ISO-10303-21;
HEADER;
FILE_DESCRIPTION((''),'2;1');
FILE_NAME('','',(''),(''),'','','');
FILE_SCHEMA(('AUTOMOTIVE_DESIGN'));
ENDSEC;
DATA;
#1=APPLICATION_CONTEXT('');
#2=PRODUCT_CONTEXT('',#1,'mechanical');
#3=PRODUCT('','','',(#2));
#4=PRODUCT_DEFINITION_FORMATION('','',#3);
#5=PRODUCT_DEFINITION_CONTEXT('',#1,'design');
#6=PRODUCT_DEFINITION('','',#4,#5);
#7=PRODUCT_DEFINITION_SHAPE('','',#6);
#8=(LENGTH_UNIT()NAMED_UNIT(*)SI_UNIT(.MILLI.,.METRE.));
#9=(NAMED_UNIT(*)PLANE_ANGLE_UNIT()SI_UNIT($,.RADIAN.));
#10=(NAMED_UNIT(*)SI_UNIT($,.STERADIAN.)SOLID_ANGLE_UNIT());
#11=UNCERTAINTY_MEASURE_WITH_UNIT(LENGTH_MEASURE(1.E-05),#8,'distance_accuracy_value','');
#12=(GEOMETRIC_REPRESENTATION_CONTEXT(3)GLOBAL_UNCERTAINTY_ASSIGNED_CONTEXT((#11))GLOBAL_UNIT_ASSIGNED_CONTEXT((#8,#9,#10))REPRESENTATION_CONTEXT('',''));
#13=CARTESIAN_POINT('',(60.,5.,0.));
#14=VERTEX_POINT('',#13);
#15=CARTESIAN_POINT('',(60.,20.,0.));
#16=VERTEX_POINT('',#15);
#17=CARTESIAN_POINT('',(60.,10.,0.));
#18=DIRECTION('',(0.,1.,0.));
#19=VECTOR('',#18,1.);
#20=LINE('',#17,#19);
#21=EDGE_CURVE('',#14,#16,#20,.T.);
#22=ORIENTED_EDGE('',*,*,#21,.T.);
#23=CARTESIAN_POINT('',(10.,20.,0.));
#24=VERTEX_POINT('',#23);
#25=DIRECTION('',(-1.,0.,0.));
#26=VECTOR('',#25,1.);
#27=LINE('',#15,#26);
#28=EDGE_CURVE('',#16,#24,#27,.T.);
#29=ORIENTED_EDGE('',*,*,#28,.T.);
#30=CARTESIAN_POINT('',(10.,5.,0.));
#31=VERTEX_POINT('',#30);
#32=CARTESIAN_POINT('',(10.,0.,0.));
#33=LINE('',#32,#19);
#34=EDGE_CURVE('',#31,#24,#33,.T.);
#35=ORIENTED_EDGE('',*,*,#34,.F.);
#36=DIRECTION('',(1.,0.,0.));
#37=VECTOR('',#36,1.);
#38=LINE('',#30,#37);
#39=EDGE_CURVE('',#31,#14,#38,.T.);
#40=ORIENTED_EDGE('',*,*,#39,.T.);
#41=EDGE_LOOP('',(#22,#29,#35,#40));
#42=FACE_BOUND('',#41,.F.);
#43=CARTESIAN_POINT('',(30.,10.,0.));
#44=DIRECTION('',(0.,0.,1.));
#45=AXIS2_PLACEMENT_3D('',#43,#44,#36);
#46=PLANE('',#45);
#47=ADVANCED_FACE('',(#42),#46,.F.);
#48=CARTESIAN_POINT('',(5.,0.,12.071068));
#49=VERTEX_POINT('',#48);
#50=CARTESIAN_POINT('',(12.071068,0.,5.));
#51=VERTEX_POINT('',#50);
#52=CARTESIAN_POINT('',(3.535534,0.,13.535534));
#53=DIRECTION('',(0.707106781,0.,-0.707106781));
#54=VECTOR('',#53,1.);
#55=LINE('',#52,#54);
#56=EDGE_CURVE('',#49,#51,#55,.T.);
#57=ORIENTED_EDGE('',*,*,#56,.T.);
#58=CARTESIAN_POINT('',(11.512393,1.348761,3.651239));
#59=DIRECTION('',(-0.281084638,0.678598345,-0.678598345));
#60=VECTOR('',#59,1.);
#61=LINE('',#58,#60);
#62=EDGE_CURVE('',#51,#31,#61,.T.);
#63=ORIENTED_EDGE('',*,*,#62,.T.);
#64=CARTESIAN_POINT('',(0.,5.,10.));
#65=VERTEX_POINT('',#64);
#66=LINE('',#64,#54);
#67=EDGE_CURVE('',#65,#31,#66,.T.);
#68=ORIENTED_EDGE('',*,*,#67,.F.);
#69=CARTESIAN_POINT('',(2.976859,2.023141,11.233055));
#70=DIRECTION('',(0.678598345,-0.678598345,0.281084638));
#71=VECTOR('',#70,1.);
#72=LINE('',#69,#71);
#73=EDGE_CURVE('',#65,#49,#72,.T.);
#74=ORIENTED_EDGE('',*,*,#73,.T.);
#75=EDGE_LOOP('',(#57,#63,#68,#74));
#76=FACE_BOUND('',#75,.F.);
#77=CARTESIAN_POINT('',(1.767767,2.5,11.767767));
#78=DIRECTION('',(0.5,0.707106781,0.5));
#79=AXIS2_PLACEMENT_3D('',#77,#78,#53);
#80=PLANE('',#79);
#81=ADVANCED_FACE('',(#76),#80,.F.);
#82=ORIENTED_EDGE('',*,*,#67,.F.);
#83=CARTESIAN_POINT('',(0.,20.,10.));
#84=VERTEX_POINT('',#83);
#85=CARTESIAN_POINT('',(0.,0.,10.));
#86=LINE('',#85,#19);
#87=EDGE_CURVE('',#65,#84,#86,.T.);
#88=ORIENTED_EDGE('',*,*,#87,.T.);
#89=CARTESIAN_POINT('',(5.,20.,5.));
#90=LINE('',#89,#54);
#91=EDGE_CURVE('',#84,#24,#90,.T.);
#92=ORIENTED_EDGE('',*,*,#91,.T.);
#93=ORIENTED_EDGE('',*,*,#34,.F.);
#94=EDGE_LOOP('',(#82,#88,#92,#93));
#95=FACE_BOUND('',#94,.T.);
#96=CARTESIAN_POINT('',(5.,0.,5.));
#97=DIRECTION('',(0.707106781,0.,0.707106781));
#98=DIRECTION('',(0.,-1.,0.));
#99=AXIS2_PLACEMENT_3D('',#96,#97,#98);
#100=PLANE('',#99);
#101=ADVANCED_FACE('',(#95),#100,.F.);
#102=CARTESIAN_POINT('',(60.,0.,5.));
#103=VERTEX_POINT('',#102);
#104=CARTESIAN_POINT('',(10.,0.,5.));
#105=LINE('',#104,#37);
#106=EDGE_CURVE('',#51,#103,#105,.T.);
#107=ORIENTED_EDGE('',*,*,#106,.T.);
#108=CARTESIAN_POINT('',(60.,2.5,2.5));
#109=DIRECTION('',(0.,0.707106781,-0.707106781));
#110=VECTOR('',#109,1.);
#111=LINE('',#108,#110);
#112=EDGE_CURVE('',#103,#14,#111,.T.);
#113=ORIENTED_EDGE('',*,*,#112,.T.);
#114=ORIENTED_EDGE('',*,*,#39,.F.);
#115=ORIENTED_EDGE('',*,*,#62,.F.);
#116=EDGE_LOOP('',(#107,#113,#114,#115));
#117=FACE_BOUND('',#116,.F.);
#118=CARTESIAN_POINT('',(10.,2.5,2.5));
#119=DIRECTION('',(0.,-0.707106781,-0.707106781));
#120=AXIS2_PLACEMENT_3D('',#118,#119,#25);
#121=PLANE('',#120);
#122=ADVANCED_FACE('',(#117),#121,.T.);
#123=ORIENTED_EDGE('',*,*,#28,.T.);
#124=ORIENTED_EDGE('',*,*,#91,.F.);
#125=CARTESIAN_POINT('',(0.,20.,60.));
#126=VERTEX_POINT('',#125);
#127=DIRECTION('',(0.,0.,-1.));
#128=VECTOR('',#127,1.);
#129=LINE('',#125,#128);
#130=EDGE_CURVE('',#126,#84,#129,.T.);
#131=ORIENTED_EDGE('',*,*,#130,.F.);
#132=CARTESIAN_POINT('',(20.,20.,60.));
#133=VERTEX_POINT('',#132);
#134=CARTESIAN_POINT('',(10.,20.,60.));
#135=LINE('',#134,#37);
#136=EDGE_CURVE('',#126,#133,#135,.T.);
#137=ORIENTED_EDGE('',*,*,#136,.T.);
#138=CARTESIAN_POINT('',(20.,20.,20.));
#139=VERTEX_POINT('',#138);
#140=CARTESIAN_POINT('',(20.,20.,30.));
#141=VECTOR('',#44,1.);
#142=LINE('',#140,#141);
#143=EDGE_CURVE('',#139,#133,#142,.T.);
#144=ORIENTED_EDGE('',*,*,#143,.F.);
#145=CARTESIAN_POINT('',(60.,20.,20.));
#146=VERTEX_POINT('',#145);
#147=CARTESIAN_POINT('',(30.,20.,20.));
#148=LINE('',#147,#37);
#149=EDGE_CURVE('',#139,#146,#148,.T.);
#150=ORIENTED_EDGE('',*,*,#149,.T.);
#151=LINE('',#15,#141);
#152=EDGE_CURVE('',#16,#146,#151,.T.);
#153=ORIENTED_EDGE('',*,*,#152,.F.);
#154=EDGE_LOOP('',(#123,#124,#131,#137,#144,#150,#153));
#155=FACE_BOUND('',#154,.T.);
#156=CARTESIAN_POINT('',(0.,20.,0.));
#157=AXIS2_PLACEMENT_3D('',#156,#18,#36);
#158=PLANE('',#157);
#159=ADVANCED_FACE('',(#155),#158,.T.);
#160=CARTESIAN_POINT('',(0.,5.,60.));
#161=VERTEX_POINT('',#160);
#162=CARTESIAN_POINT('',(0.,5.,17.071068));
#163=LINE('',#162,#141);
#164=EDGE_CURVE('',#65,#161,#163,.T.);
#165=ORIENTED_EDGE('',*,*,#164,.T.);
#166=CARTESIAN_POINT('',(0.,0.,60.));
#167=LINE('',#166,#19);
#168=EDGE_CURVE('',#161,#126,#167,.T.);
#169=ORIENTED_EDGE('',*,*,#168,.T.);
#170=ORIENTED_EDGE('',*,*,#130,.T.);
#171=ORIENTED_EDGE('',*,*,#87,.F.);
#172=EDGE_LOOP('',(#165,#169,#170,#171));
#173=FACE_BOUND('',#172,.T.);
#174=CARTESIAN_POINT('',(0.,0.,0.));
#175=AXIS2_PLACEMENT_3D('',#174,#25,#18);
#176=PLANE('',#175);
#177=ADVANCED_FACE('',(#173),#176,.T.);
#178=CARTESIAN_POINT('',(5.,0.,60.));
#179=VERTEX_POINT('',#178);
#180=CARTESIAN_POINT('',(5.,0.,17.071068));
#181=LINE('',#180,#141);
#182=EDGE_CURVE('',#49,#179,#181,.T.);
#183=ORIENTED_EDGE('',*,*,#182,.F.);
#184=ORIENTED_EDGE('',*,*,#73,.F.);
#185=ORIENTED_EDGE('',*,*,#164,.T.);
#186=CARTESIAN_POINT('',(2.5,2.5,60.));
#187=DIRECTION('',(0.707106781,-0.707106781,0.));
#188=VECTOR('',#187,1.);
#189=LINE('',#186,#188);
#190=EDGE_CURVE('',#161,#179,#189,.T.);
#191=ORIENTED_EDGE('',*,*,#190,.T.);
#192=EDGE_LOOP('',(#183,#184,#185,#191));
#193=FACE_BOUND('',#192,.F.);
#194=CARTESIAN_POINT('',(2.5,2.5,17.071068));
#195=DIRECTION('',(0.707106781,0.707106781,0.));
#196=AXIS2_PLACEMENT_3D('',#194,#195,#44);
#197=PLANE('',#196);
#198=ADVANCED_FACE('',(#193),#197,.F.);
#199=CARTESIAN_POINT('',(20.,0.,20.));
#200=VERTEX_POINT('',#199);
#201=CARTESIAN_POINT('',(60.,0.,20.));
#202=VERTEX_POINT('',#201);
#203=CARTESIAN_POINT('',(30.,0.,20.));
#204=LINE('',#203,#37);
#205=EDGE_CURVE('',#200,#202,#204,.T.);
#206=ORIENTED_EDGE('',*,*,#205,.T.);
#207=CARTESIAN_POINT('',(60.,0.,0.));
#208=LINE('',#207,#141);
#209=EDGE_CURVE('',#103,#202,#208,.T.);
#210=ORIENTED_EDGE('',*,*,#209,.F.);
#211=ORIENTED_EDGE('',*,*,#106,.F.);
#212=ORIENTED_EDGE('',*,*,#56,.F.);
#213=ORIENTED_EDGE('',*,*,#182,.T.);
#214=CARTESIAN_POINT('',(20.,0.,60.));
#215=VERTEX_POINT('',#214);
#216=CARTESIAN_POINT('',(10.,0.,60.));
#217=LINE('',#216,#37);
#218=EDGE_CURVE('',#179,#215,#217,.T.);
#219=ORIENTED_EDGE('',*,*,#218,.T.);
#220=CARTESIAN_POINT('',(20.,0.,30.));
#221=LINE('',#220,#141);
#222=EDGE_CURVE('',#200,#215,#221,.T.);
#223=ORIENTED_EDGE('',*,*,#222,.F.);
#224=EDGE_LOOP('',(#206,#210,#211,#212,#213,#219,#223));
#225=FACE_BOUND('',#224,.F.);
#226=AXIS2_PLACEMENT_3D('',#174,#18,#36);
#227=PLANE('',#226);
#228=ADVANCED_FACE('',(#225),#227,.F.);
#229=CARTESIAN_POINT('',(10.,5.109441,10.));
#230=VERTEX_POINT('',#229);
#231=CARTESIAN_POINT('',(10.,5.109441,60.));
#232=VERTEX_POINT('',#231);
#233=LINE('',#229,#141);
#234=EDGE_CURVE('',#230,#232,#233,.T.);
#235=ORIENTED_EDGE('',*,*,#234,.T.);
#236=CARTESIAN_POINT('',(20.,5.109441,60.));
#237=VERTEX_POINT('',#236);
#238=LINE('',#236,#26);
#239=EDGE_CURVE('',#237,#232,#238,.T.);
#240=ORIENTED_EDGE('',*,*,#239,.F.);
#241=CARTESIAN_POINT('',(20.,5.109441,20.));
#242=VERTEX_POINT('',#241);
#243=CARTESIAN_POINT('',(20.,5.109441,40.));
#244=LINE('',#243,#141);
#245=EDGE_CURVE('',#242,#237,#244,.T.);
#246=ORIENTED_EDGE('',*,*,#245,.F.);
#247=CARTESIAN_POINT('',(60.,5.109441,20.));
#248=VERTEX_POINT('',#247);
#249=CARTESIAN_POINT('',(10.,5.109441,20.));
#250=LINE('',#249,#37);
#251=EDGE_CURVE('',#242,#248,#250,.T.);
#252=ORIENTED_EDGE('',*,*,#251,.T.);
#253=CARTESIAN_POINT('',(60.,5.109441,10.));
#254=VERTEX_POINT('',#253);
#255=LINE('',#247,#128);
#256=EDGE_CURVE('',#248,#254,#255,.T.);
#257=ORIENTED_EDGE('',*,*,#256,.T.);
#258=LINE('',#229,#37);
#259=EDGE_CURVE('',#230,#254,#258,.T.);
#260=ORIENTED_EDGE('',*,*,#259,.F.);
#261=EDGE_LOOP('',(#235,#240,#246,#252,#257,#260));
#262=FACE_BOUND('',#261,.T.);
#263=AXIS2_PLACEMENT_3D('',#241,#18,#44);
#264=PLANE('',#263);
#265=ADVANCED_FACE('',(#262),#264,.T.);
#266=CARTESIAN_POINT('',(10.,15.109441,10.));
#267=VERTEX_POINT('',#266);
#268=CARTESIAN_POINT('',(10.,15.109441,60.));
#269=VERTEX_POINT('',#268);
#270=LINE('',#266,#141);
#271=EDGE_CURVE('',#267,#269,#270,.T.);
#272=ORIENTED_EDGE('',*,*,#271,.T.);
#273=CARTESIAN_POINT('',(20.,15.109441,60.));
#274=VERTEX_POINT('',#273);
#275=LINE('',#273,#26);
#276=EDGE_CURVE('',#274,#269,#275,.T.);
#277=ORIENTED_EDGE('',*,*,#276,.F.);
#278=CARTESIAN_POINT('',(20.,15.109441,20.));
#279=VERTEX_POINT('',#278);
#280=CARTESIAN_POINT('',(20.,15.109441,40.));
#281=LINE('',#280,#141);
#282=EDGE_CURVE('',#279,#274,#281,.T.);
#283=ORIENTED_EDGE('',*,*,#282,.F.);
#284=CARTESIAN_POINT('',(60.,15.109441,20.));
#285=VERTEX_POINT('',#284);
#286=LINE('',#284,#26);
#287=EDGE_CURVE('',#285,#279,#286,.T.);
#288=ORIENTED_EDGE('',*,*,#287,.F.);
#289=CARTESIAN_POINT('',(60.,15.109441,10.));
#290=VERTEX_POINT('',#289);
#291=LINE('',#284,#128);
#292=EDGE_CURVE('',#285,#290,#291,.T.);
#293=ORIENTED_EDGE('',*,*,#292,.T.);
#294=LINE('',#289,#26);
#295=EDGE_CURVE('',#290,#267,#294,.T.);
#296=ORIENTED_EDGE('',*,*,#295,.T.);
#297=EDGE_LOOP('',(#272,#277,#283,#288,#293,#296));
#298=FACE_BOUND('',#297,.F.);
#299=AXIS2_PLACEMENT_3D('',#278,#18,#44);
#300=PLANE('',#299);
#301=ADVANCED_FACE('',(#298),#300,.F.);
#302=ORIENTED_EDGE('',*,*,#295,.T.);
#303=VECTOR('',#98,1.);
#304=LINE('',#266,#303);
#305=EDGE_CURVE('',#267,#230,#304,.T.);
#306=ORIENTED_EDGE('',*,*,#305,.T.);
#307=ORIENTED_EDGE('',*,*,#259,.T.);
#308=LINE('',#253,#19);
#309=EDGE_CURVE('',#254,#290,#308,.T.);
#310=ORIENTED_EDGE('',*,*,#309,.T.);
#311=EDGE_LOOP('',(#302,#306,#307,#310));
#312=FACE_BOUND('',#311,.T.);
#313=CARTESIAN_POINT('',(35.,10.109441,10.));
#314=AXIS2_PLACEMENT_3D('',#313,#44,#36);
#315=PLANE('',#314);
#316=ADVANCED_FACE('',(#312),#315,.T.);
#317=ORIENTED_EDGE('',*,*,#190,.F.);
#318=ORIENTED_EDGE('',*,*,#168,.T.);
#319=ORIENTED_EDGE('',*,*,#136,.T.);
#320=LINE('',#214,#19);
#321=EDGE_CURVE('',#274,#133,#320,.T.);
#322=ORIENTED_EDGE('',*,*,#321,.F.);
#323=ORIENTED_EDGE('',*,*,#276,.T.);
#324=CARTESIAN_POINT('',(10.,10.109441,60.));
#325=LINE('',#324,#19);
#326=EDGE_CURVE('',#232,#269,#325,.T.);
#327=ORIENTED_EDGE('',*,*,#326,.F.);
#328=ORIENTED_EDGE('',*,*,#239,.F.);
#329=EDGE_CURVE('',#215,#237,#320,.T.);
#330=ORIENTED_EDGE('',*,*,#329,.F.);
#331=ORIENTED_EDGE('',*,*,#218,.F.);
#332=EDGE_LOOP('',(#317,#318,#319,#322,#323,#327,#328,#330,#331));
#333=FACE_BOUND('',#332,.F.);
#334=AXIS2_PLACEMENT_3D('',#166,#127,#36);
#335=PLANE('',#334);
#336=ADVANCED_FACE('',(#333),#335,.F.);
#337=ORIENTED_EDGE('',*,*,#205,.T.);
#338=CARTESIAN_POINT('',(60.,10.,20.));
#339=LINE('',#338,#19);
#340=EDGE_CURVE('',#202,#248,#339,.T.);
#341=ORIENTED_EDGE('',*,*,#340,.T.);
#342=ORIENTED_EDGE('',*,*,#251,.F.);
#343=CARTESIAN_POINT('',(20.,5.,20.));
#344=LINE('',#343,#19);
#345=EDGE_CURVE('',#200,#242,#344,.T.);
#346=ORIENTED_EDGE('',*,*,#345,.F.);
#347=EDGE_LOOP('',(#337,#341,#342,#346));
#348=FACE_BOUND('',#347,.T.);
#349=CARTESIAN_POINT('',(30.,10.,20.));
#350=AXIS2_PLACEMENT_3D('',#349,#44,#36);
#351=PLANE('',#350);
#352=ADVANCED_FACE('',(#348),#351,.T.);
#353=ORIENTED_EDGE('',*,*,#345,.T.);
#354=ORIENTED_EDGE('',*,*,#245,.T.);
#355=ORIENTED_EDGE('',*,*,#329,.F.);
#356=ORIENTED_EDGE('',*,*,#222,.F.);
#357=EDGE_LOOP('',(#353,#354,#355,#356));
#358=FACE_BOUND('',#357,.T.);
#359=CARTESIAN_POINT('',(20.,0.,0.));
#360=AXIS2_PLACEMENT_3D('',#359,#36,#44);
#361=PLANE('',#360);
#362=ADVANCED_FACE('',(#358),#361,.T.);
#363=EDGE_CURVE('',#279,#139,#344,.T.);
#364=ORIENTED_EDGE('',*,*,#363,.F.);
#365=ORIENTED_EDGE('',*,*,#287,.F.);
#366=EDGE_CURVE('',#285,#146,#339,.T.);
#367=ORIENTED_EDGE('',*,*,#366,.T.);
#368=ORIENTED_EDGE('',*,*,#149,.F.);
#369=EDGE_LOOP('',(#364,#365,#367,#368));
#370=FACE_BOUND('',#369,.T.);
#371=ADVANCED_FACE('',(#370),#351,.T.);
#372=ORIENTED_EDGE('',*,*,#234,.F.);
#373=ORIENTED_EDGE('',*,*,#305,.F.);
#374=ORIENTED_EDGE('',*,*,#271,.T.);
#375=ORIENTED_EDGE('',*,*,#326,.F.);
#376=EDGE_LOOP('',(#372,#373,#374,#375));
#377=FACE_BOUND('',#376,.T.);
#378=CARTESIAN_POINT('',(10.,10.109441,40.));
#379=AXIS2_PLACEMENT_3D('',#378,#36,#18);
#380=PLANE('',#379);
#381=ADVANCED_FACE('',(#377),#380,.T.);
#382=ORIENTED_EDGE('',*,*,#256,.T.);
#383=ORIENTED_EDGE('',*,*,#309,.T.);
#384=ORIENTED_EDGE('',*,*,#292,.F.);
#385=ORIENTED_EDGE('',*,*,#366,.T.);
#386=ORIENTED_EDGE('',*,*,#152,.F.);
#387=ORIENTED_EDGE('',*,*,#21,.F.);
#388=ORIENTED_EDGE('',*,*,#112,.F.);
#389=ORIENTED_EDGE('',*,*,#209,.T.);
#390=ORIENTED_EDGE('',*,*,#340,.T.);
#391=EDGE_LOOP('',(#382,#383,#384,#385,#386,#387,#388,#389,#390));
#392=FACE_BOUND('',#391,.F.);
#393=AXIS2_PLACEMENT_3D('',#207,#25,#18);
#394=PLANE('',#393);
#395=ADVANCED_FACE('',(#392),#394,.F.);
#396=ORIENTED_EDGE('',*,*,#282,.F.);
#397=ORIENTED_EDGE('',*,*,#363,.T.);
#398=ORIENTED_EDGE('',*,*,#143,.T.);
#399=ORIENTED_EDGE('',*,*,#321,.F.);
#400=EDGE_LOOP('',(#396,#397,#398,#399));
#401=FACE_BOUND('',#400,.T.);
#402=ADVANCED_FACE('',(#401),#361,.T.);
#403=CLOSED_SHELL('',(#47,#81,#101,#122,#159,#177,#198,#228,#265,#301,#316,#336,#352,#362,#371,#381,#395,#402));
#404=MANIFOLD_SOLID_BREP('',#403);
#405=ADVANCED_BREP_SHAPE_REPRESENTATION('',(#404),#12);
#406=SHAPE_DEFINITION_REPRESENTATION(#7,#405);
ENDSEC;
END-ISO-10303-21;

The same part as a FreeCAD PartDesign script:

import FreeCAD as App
import Part
import Sketcher
Q = App.Units.Quantity


def edges_at(feature, points):
    """Names of the edges that pass closest to the given points."""
    edges = feature.Shape.Edges
    near = lambda p: min(range(len(edges)), key=lambda i: edges[i].distToShape(Part.Vertex(*p))[0])
    return sorted({f"Edge{near(p) + 1}" for p in points})


def add_polygon(sketch, points):
    """Adds a closed chain of lines whose ends are joined by coincident constraints."""
    first, n = sketch.GeometryCount, len(points)
    for a, b in zip(points, points[1:] + points[:1]):
        sketch.addGeometry(Part.LineSegment(App.Vector(*a, 0), App.Vector(*b, 0)), False)
    for i in range(n):
        sketch.addConstraint(Sketcher.Constraint("Coincident", first + i, 2, first + (i + 1) % n, 1))

doc = App.newDocument("Part")
params = doc.addObject("Spreadsheet::Sheet", "Params")
for row, (alias, value) in enumerate([
    ("sketch1_width", "60 mm"),
    ("sketch1_height", "20 mm"),
    ("pad1_length", "20 mm"),
    ("sketch2_width", "20 mm"),
    ("sketch2_height", "60 mm"),
    ("pad2_length", "20 mm"),
    ("sketch3_width", "10 mm"),
    ("sketch3_height", "40 mm"),
    ("pocket1_length", "10 mm"),
    ("sketch4_width", "50 mm"),
    ("sketch4_height", "10 mm"),
    ("pocket2_length", "10 mm"),
    ("chamfer_size", "10 mm"),
    ("chamfer2_size", "5 mm"),
    ("chamfer3_size", "5 mm"),
], start=1):
    params.set(f"A{row}", alias)
    params.set(f"B{row}", "=" + value)
    params.setAlias(f"B{row}", alias)

body = doc.addObject("PartDesign::Body", "Body")

sketch1 = doc.addObject("Sketcher::SketchObject", "Sketch")
body.addObject(sketch1)
sketch1.AttachmentSupport = (doc.XY_Plane, [""])
sketch1.MapMode = "FlatFace"
add_polygon(sketch1, [(0, 20), (0, 0), (60, 0), (60, 20)])
sketch1.addConstraint(Sketcher.Constraint("Vertical", 0))
sketch1.addConstraint(Sketcher.Constraint("Horizontal", 1))
sketch1.addConstraint(Sketcher.Constraint("Vertical", 2))
sketch1.addConstraint(Sketcher.Constraint("Horizontal", 3))
sketch1.addConstraint(Sketcher.Constraint("Coincident", 0, 2, -1, 1))
sketch1.addConstraint(Sketcher.Constraint("DistanceX", 1, 1, 1, 2, Q("60 mm")))
sketch1.addConstraint(Sketcher.Constraint("DistanceY", 0, 2, 0, 1, Q("20 mm")))
sketch1.setExpression("Constraints[9]", "Params.sketch1_width")
sketch1.setExpression("Constraints[10]", "Params.sketch1_height")
pad1 = doc.addObject("PartDesign::Pad", "Pad")
body.addObject(pad1)
pad1.Profile = sketch1
pad1.setExpression("Length", "Params.pad1_length")

sketch2 = doc.addObject("Sketcher::SketchObject", "Sketch001")
body.addObject(sketch2)
sketch2.AttachmentSupport = (doc.XZ_Plane, [""])
sketch2.MapMode = "FlatFace"
add_polygon(sketch2, [(0, 60), (0, 0), (20, 0), (20, 60)])
sketch2.addConstraint(Sketcher.Constraint("Vertical", 0))
sketch2.addConstraint(Sketcher.Constraint("Horizontal", 1))
sketch2.addConstraint(Sketcher.Constraint("Vertical", 2))
sketch2.addConstraint(Sketcher.Constraint("Horizontal", 3))
sketch2.addConstraint(Sketcher.Constraint("Coincident", 0, 2, -1, 1))
sketch2.addConstraint(Sketcher.Constraint("DistanceX", 1, 1, 1, 2, Q("20 mm")))
sketch2.addConstraint(Sketcher.Constraint("DistanceY", 0, 2, 0, 1, Q("60 mm")))
sketch2.setExpression("Constraints[9]", "Params.sketch2_width")
sketch2.setExpression("Constraints[10]", "Params.sketch2_height")
pad2 = doc.addObject("PartDesign::Pad", "Pad001")
body.addObject(pad2)
pad2.Profile = sketch2
pad2.setExpression("Length", "Params.pad2_length")
pad2.Reversed = True

sketch3 = doc.addObject("Sketcher::SketchObject", "Sketch002")
body.addObject(sketch3)
sketch3.AttachmentSupport = (doc.YZ_Plane, [""])
sketch3.MapMode = "FlatFace"
sketch3.AttachmentOffset = App.Placement(App.Vector(0, 0, 20), App.Rotation())
add_polygon(sketch3, [(5, 60), (5, 20), (15, 20), (15, 60)])
sketch3.addConstraint(Sketcher.Constraint("Vertical", 0))
sketch3.addConstraint(Sketcher.Constraint("Horizontal", 1))
sketch3.addConstraint(Sketcher.Constraint("Vertical", 2))
sketch3.addConstraint(Sketcher.Constraint("Horizontal", 3))
sketch3.addConstraint(Sketcher.Constraint("DistanceX", 1, 1, 1, 2, Q("10 mm")))
sketch3.addConstraint(Sketcher.Constraint("DistanceY", 0, 2, 0, 1, Q("40 mm")))
sketch3.addConstraint(Sketcher.Constraint("DistanceY", -1, 1, 0, 2, Q("20 mm")))
sketch3.addConstraint(Sketcher.Constraint("DistanceX", -1, 1, 0, 2, Q("5.109441 mm")))
sketch3.setExpression("Constraints[8]", "Params.sketch3_width")
sketch3.setExpression("Constraints[9]", "Params.sketch3_height")
pocket1 = doc.addObject("PartDesign::Pocket", "Pocket")
body.addObject(pocket1)
pocket1.Profile = sketch3
pocket1.setExpression("Length", "Params.pocket1_length")

sketch4 = doc.addObject("Sketcher::SketchObject", "Sketch003")
body.addObject(sketch4)
sketch4.AttachmentSupport = (doc.XY_Plane, [""])
sketch4.MapMode = "FlatFace"
sketch4.AttachmentOffset = App.Placement(App.Vector(0, 0, 20), App.Rotation())
add_polygon(sketch4, [(10, 15), (10, 5), (60, 5), (60, 15)])
sketch4.addConstraint(Sketcher.Constraint("Vertical", 0))
sketch4.addConstraint(Sketcher.Constraint("Horizontal", 1))
sketch4.addConstraint(Sketcher.Constraint("Vertical", 2))
sketch4.addConstraint(Sketcher.Constraint("Horizontal", 3))
sketch4.addConstraint(Sketcher.Constraint("DistanceX", 1, 1, 1, 2, Q("50 mm")))
sketch4.addConstraint(Sketcher.Constraint("DistanceY", 0, 2, 0, 1, Q("10 mm")))
sketch4.addConstraint(Sketcher.Constraint("DistanceX", -1, 1, 0, 2, Q("10 mm")))
sketch4.addConstraint(Sketcher.Constraint("DistanceY", -1, 1, 0, 2, Q("5.109441 mm")))
sketch4.setExpression("Constraints[8]", "Params.sketch4_width")
sketch4.setExpression("Constraints[9]", "Params.sketch4_height")
pocket2 = doc.addObject("PartDesign::Pocket", "Pocket001")
body.addObject(pocket2)
pocket2.Profile = sketch4
pocket2.setExpression("Length", "Params.pocket2_length")
doc.recompute()

chamfer = doc.addObject("PartDesign::Chamfer", "Chamfer")
body.addObject(chamfer)
chamfer.Base = (pocket2, edges_at(pocket2, [(0, 10, 0)]))
chamfer.setExpression("Size", "Params.chamfer_size")
doc.recompute()

chamfer2 = doc.addObject("PartDesign::Chamfer", "Chamfer001")
body.addObject(chamfer2)
chamfer2.Base = (chamfer, edges_at(chamfer, [(35, 0, 0), (5, 0, 5)]))
chamfer2.setExpression("Size", "Params.chamfer2_size")
doc.recompute()

chamfer3 = doc.addObject("PartDesign::Chamfer", "Chamfer002")
body.addObject(chamfer3)
chamfer3.Base = (chamfer2, edges_at(chamfer2, [(0, 0, 38.536)]))
chamfer3.setExpression("Size", "Params.chamfer3_size")

doc.recompute()
